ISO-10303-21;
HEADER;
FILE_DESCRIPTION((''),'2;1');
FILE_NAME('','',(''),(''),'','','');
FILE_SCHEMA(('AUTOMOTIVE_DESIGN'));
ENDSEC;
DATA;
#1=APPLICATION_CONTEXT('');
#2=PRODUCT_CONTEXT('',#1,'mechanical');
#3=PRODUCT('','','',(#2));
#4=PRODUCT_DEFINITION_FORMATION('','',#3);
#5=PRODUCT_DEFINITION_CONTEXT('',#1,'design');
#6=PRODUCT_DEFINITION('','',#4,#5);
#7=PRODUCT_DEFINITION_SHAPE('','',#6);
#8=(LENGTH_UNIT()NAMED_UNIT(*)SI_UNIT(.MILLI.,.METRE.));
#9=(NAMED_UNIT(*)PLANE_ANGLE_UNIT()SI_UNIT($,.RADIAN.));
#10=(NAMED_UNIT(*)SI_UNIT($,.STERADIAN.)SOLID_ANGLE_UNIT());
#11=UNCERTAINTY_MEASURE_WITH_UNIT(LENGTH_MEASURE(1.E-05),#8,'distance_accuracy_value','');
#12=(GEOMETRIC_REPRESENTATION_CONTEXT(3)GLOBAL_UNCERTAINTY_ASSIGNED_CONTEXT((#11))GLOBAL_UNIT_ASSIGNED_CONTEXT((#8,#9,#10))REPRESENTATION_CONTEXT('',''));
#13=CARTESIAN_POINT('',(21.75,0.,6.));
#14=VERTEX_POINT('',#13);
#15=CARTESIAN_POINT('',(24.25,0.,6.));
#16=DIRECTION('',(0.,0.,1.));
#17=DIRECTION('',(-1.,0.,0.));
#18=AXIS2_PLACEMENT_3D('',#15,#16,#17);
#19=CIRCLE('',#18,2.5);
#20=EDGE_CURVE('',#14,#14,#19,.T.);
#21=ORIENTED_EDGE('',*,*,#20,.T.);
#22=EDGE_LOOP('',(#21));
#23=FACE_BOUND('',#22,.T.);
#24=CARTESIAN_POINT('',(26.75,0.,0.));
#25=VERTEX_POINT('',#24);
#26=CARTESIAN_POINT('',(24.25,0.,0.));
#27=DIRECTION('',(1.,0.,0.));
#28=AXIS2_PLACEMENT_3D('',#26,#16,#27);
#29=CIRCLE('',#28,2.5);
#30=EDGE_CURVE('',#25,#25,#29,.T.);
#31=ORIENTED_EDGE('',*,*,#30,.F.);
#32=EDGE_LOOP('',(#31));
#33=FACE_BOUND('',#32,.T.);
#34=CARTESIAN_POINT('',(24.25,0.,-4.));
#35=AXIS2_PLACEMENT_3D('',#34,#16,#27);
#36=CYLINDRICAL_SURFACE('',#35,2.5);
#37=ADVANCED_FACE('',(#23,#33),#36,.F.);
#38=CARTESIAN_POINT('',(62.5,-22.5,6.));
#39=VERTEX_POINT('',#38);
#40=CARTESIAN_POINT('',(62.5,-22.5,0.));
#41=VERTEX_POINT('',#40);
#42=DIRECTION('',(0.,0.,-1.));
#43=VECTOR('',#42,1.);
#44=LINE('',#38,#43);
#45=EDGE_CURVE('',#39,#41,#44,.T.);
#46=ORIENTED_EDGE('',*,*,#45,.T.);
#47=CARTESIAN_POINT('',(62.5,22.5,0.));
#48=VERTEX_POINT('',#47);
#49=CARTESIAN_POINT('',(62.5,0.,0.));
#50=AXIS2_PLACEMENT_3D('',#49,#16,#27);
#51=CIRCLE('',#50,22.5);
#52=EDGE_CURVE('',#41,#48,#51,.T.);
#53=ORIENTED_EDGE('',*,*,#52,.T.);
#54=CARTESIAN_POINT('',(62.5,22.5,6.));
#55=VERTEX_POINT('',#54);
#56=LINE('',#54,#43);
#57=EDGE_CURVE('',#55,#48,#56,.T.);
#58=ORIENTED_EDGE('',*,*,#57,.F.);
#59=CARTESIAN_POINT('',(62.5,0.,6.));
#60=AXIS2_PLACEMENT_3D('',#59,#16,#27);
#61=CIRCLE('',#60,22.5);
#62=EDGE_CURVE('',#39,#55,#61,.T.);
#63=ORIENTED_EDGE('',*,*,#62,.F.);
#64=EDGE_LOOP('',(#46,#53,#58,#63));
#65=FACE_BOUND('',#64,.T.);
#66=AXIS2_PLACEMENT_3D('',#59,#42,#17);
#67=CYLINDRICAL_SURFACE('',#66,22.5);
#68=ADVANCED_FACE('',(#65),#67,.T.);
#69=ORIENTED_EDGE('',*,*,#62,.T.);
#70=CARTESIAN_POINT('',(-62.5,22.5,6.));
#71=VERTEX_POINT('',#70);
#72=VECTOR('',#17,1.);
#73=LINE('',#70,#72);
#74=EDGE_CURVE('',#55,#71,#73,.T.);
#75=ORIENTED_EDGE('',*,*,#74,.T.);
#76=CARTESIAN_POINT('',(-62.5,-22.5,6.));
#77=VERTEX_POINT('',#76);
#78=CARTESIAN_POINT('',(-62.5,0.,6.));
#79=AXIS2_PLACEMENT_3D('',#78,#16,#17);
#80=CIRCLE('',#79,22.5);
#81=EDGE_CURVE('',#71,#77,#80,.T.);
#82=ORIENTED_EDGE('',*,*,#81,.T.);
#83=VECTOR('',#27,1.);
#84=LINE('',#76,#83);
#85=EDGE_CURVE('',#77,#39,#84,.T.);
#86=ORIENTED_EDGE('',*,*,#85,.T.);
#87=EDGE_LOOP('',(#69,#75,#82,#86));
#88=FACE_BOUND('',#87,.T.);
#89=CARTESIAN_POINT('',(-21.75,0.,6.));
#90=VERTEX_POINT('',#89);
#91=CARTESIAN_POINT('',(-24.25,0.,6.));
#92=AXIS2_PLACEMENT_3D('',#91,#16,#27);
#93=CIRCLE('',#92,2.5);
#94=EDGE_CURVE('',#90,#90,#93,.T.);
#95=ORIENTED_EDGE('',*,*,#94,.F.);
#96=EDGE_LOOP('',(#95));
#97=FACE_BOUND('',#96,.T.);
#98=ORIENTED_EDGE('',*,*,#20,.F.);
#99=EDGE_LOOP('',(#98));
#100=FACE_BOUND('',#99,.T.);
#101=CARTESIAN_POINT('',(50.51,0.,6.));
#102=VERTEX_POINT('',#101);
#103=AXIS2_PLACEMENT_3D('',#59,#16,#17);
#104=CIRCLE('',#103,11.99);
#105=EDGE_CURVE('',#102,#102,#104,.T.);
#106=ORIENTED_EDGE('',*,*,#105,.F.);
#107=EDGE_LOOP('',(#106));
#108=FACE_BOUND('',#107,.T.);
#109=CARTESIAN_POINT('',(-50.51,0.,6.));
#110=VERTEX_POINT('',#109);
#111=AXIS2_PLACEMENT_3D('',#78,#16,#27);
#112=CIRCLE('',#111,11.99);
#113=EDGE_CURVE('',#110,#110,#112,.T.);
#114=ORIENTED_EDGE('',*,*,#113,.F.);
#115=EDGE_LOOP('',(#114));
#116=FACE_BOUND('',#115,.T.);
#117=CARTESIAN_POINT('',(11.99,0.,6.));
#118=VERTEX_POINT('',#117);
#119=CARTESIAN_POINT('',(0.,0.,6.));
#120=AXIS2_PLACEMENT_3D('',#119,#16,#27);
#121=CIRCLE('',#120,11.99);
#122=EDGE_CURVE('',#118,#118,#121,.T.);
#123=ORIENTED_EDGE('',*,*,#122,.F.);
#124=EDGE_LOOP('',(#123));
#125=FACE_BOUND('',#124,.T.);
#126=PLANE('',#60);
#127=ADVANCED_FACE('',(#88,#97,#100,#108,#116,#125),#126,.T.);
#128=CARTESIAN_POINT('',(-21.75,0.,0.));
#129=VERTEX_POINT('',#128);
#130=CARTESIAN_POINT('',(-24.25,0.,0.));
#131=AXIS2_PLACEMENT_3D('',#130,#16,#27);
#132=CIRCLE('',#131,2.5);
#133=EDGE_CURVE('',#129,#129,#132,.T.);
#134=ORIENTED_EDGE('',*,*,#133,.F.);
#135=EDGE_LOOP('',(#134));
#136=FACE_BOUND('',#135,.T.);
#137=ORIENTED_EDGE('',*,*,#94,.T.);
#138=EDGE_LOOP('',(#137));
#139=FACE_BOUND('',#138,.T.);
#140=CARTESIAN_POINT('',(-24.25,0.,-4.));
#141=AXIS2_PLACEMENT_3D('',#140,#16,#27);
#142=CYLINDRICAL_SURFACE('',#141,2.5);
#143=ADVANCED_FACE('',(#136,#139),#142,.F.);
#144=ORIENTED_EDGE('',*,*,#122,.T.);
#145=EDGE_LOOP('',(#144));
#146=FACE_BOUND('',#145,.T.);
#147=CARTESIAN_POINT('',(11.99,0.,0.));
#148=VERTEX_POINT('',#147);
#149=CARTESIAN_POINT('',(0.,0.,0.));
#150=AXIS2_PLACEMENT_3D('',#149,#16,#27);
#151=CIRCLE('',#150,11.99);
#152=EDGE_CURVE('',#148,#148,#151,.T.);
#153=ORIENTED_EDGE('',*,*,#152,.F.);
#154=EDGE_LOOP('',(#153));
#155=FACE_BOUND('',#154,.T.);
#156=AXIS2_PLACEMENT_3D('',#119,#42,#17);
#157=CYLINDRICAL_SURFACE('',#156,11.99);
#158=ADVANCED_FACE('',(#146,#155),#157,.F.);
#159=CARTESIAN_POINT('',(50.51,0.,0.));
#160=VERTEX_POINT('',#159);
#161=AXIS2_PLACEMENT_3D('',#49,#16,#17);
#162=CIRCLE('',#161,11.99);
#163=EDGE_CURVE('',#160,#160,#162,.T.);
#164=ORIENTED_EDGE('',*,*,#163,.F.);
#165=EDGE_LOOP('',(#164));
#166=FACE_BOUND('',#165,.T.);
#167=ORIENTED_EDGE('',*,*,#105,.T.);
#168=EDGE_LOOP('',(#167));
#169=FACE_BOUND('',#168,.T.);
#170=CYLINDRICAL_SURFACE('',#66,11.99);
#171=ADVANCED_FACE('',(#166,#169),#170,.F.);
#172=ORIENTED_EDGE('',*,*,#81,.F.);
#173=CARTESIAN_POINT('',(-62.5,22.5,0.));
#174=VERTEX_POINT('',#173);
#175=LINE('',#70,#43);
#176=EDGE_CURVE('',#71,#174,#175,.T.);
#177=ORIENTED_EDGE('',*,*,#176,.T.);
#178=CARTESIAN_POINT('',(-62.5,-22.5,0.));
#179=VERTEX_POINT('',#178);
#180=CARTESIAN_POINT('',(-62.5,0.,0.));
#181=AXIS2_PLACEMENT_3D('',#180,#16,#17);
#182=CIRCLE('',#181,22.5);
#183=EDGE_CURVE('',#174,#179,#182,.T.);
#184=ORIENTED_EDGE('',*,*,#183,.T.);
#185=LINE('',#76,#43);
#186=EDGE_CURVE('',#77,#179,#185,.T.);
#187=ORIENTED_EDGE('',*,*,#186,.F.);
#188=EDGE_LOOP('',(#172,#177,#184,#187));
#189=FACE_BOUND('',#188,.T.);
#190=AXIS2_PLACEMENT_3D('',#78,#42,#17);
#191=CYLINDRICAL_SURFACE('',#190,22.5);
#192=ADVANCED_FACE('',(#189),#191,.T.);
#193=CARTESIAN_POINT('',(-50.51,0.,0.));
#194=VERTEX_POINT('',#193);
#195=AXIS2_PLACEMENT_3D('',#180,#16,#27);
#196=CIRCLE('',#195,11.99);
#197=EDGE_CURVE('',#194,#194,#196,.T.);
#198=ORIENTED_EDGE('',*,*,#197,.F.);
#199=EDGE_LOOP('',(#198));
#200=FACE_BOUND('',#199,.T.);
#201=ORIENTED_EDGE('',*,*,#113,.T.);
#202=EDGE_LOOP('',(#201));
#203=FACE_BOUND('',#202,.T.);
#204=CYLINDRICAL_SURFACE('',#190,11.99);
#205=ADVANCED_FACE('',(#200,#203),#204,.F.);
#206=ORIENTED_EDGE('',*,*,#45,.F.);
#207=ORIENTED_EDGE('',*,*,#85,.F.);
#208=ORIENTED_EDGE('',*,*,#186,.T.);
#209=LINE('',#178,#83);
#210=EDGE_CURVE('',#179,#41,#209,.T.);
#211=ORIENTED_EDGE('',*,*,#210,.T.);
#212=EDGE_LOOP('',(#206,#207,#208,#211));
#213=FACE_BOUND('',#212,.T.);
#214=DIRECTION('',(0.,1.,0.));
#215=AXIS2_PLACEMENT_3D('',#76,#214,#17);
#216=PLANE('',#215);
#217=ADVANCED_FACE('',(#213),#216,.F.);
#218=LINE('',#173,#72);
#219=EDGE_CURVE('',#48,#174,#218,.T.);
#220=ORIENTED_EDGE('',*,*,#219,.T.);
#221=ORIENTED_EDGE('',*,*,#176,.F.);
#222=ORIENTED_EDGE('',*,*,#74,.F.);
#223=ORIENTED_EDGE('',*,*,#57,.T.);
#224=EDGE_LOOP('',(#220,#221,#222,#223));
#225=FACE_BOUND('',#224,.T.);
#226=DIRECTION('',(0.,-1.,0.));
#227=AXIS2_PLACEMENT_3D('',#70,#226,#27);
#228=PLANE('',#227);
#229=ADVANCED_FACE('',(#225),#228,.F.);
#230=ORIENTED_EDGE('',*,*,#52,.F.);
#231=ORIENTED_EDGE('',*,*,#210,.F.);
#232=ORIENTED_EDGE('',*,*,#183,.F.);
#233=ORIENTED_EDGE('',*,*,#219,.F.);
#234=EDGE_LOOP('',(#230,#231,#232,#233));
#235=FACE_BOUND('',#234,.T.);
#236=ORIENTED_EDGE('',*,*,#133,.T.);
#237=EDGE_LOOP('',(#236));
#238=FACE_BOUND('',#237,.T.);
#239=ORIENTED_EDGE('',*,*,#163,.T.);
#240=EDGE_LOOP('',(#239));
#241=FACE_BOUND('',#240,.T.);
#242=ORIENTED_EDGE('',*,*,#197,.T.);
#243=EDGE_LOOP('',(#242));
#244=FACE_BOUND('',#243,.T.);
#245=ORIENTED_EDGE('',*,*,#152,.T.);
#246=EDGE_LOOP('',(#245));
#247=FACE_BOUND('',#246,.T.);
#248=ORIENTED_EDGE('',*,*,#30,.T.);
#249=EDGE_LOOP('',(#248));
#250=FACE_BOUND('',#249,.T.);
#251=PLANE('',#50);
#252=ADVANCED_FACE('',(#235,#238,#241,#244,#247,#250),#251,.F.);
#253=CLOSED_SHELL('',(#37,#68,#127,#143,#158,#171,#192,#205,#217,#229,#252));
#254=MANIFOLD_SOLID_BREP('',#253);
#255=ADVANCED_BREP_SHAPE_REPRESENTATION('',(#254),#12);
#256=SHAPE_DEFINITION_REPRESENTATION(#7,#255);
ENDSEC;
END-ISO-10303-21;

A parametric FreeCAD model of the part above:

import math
import FreeCAD as App
import Part
import Sketcher

doc = App.newDocument("Part")
body = doc.addObject("PartDesign::Body", "Body")

# Sketch on XY plane
sketch1 = body.newObject("Sketcher::SketchObject", "Sketch")
sketch1.AttachmentSupport = (doc.getObject("XY_Plane"), [""])
sketch1.MapMode = "FlatFace"
sketch1.addGeometry([
    Part.LineSegment(App.Vector(-62, -22, 0), App.Vector(62, -22, 0)),  # 0
    Part.ArcOfCircle(Part.Circle(App.Vector(62, 0, 0), App.Vector(0, 0, 1), 22), math.radians(-90), math.radians(90)),  # 1
    Part.LineSegment(App.Vector(62, 22, 0), App.Vector(-62, 22, 0)),  # 2
    Part.ArcOfCircle(Part.Circle(App.Vector(-62, 0, 0), App.Vector(0, 0, 1), 22), math.radians(90), math.radians(270)),  # 3
    Part.Circle(App.Vector(-62, 0, 0), App.Vector(0, 0, 1), 12),  # 4
    Part.Circle(App.Vector(0, 0, 0), App.Vector(0, 0, 1), 12),  # 5
    Part.Circle(App.Vector(62, 0, 0), App.Vector(0, 0, 1), 12),  # 6
], False)
sketch1.addConstraint([
    Sketcher.Constraint("Tangent", 0, 2, 1, 1),
    Sketcher.Constraint("Tangent", 1, 2, 2, 1),
    Sketcher.Constraint("Tangent", 2, 2, 3, 1),
    Sketcher.Constraint("Tangent", 3, 2, 0, 1),
    Sketcher.Constraint("Horizontal", 0),
    Sketcher.Constraint("Horizontal", 2),
    Sketcher.Constraint("Coincident", 5, 3, -1, 1),
    Sketcher.Constraint("Coincident", 4, 3, 3, 3),
    Sketcher.Constraint("Coincident", 6, 3, 1, 3),
    Sketcher.Constraint("Equal", 4, 5),
    Sketcher.Constraint("Equal", 5, 6),
    Sketcher.Constraint("Symmetric", 1, 3, 3, 3, -1, 1),
    Sketcher.Constraint("Radius", 1, 22.5),
    Sketcher.Constraint("Diameter", 4, 23.98),
    Sketcher.Constraint("DistanceX", 0, 1, 0, 2, 125.0),
])
pad1 = body.newObject("PartDesign::Pad", "Pad")
pad1.Profile = sketch1
pad1.Length = 6

# Sketch on XY plane
sketch2 = body.newObject("Sketcher::SketchObject", "Sketch001")
sketch2.AttachmentSupport = (doc.getObject("XY_Plane"), [""])
sketch2.MapMode = "FlatFace"
sketch2.AttachmentOffset = App.Placement(App.Vector(0, 0, 6), App.Rotation())
sketch2.addGeometry([
    Part.Circle(App.Vector(-24.2, 0, 0), App.Vector(0, 0, 1), 2.5),
    Part.Circle(App.Vector(24.2, 0, 0), App.Vector(0, 0, 1), 2.5),
], False)
sketch2.addConstraint([
    Sketcher.Constraint("Equal", 0, 1),
    Sketcher.Constraint("Symmetric", 0, 3, 1, 3, -1, 1),
    Sketcher.Constraint("PointOnObject", 0, 3, -1),
    Sketcher.Constraint("Diameter", 0, 5.0),
    Sketcher.Constraint("DistanceX", 0, 3, 1, 3, 48.5),
])
pocket1 = body.newObject("PartDesign::Pocket", "Pocket")
pocket1.Profile = sketch2
pocket1.Length = 10

doc.recompute()
